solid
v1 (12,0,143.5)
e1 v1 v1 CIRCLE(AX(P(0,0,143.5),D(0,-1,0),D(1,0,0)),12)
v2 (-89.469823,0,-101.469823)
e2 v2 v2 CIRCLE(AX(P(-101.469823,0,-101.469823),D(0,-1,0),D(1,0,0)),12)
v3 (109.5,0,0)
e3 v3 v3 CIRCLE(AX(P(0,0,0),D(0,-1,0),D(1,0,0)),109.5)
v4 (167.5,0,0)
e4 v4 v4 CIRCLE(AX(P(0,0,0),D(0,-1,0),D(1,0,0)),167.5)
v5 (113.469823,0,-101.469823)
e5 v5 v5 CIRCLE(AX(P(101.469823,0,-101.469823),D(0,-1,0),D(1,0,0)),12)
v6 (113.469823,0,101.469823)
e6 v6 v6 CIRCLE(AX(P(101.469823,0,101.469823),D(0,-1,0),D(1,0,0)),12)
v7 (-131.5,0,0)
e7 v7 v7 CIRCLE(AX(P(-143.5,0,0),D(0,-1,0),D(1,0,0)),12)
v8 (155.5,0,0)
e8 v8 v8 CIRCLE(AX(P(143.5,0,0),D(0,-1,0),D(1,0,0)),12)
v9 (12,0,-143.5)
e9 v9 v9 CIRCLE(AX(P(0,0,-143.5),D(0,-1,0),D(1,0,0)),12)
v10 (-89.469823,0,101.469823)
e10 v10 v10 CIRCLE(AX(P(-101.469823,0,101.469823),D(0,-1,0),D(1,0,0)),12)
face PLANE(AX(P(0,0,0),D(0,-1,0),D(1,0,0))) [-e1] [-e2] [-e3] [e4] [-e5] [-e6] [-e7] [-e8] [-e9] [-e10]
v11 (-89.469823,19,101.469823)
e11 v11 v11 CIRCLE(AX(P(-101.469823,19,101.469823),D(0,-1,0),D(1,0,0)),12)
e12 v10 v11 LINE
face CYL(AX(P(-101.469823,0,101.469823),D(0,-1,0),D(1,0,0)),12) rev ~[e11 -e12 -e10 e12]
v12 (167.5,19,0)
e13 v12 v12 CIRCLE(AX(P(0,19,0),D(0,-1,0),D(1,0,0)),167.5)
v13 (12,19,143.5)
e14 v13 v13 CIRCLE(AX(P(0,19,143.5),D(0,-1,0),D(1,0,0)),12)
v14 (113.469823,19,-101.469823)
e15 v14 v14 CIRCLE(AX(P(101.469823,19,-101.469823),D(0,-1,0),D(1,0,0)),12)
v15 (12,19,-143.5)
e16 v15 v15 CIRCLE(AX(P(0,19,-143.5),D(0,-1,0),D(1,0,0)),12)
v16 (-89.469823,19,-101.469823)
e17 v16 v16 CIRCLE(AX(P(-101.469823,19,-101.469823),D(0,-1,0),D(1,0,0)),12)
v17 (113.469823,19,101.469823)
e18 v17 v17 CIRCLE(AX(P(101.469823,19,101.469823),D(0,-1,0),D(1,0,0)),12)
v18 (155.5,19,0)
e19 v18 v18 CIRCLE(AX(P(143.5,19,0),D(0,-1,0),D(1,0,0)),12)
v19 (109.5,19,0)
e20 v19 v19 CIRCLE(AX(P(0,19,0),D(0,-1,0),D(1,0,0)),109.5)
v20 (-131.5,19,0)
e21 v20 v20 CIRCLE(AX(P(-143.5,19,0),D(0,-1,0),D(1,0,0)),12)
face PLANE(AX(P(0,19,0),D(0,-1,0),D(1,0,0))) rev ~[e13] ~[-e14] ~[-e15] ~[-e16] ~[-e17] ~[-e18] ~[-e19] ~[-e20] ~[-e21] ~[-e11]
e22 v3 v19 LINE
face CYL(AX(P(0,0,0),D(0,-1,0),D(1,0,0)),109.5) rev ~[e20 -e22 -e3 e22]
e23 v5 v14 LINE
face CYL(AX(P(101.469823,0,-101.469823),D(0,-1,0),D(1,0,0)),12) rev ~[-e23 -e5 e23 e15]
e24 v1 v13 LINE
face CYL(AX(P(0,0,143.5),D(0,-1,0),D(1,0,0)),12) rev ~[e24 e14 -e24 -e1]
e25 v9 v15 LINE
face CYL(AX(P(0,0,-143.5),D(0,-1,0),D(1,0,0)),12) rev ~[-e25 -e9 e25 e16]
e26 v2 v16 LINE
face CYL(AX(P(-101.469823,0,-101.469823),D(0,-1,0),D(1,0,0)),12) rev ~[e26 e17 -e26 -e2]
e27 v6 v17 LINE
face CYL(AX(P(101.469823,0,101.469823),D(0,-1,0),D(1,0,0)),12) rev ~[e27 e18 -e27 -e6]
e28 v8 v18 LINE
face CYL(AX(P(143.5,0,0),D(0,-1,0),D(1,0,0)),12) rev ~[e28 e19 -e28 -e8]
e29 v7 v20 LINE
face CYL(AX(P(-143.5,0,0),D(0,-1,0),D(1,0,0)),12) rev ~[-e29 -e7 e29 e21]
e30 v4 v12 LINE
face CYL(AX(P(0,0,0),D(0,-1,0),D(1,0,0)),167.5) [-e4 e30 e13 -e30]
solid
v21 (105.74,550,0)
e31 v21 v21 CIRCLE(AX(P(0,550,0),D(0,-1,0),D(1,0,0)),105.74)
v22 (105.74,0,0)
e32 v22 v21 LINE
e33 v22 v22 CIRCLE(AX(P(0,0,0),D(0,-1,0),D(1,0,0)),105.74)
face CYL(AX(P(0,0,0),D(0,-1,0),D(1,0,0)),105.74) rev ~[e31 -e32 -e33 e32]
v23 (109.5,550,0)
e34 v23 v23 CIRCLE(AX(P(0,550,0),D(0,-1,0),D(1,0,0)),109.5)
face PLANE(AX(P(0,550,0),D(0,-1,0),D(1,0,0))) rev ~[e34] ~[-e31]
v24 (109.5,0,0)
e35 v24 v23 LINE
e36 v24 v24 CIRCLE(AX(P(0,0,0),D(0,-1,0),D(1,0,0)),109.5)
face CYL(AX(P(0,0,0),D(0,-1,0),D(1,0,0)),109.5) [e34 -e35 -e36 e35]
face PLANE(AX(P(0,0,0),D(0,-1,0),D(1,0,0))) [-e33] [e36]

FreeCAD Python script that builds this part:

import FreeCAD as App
import Part
import Sketcher

V = App.Vector

doc = App.newDocument("Part")
params = doc.addObject("Spreadsheet::Sheet", "Params")
for row, (alias, value) in enumerate([
    ("sketch1_diameter", "219 mm"),
    ("sketch1_diameter2", "211.48 mm"),
    ("pad1_length", "550 mm"),
    ("sketch2_diameter", "335 mm"),
    ("sketch2_diameter2", "24 mm"),
    ("sketch2_diameter3", "219 mm"),
    ("pad2_length", "19 mm"),
], start=1):
    params.set(f"A{row}", alias)
    params.set(f"B{row}", "=" + value)
    params.setAlias(f"B{row}", alias)

body = doc.addObject("PartDesign::Body", "Body")

# Sketch on XZ plane
sketch1 = body.newObject("Sketcher::SketchObject", "Sketch")
sketch1.AttachmentSupport = (doc.getObject("XZ_Plane"), [""])
sketch1.MapMode = "FlatFace"
sketch1.addGeometry(Part.Circle(V(0, 0, 0), V(0, 0, 1), 110), False)
sketch1.addGeometry(Part.Circle(V(0, 0, 0), V(0, 0, 1), 106), False)
sketch1.addConstraint(Sketcher.Constraint("Coincident", 0, 3, -1, 1))
sketch1.addConstraint(Sketcher.Constraint("Coincident", 1, 3, -1, 1))
sketch1.addConstraint(Sketcher.Constraint("Diameter", 0, 219.0))
sketch1.addConstraint(Sketcher.Constraint("Diameter", 1, 211.48))
sketch1.setExpression("Constraints[2]", "Params.sketch1_diameter")
sketch1.setExpression("Constraints[3]", "Params.sketch1_diameter2")
pad1 = body.newObject("PartDesign::Pad", "Pad")
pad1.Profile = sketch1
pad1.setExpression("Length", "Params.pad1_length")
pad1.Reversed = True
body2 = doc.addObject("PartDesign::Body", "Body001")

# Sketch on XZ plane
sketch2 = body2.newObject("Sketcher::SketchObject", "Sketch001")
sketch2.AttachmentSupport = (doc.getObject("XZ_Plane001"), [""])
sketch2.MapMode = "FlatFace"
sketch2.addGeometry(Part.Circle(V(0, 0, 0), V(0, 0, 1), 168), False)
sketch2.addGeometry(Part.Circle(V(-101, -101, 0), V(0, 0, 1), 12), False)
sketch2.addGeometry(Part.Circle(V(0, -144, 0), V(0, 0, 1), 12), False)
sketch2.addGeometry(Part.Circle(V(101, -101, 0), V(0, 0, 1), 12), False)
sketch2.addGeometry(Part.Circle(V(-144, 0, 0), V(0, 0, 1), 12), False)
sketch2.addGeometry(Part.Circle(V(-101, 101, 0), V(0, 0, 1), 12), False)
sketch2.addGeometry(Part.Circle(V(0, 0, 0), V(0, 0, 1), 110), False)
sketch2.addGeometry(Part.Circle(V(144, 0, 0), V(0, 0, 1), 12), False)
sketch2.addGeometry(Part.Circle(V(0, 144, 0), V(0, 0, 1), 12), False)
sketch2.addGeometry(Part.Circle(V(101, 101, 0), V(0, 0, 1), 12), False)
sketch2.addConstraint(Sketcher.Constraint("Coincident", 0, 3, -1, 1))
sketch2.addConstraint(Sketcher.Constraint("Coincident", 6, 3, -1, 1))
sketch2.addConstraint(Sketcher.Constraint("Equal", 1, 2))
sketch2.addConstraint(Sketcher.Constraint("Equal", 2, 3))
sketch2.addConstraint(Sketcher.Constraint("Equal", 3, 4))
sketch2.addConstraint(Sketcher.Constraint("Equal", 4, 5))
sketch2.addConstraint(Sketcher.Constraint("Equal", 5, 7))
sketch2.addConstraint(Sketcher.Constraint("Equal", 7, 8))
sketch2.addConstraint(Sketcher.Constraint("Equal", 8, 9))
sketch2.addConstraint(Sketcher.Constraint("Symmetric", 3, 3, 5, 3, -1, 1))
sketch2.addConstraint(Sketcher.Constraint("Symmetric", 4, 3, 7, 3, -1, 1))
sketch2.addConstraint(Sketcher.Constraint("Symmetric", 2, 3, 8, 3, -1, 1))
sketch2.addConstraint(Sketcher.Constraint("Symmetric", 1, 3, 9, 3, -1, 1))
sketch2.addConstraint(Sketcher.Constraint("Symmetric", 1, 3, 3, 3, -2))
sketch2.addConstraint(Sketcher.Constraint("PointOnObject", 2, 3, -2))
sketch2.addConstraint(Sketcher.Constraint("PointOnObject", 4, 3, -1))
sketch2.addConstraint(Sketcher.Constraint("Diameter", 0, 335.0))
sketch2.addConstraint(Sketcher.Constraint("Diameter", 1, 24.0))
sketch2.addConstraint(Sketcher.Constraint("Diameter", 6, 219.0))
sketch2.addConstraint(Sketcher.Constraint("DistanceY", 2, 3, -1, 1, 143.5))
sketch2.addConstraint(Sketcher.Constraint("DistanceX", 4, 3, -1, 1, 143.5))
sketch2.addConstraint(Sketcher.Constraint("DistanceX", 1, 3, -1, 1, 101.469823))
sketch2.addConstraint(Sketcher.Constraint("DistanceY", 1, 3, -1, 1, 101.469823))
sketch2.setExpression("Constraints[16]", "Params.sketch2_diameter")
sketch2.setExpression("Constraints[17]", "Params.sketch2_diameter2")
sketch2.setExpression("Constraints[18]", "Params.sketch2_diameter3")
pad2 = body2.newObject("PartDesign::Pad", "Pad001")
pad2.Profile = sketch2
pad2.setExpression("Length", "Params.pad2_length")
pad2.Reversed = True

doc.recompute()
